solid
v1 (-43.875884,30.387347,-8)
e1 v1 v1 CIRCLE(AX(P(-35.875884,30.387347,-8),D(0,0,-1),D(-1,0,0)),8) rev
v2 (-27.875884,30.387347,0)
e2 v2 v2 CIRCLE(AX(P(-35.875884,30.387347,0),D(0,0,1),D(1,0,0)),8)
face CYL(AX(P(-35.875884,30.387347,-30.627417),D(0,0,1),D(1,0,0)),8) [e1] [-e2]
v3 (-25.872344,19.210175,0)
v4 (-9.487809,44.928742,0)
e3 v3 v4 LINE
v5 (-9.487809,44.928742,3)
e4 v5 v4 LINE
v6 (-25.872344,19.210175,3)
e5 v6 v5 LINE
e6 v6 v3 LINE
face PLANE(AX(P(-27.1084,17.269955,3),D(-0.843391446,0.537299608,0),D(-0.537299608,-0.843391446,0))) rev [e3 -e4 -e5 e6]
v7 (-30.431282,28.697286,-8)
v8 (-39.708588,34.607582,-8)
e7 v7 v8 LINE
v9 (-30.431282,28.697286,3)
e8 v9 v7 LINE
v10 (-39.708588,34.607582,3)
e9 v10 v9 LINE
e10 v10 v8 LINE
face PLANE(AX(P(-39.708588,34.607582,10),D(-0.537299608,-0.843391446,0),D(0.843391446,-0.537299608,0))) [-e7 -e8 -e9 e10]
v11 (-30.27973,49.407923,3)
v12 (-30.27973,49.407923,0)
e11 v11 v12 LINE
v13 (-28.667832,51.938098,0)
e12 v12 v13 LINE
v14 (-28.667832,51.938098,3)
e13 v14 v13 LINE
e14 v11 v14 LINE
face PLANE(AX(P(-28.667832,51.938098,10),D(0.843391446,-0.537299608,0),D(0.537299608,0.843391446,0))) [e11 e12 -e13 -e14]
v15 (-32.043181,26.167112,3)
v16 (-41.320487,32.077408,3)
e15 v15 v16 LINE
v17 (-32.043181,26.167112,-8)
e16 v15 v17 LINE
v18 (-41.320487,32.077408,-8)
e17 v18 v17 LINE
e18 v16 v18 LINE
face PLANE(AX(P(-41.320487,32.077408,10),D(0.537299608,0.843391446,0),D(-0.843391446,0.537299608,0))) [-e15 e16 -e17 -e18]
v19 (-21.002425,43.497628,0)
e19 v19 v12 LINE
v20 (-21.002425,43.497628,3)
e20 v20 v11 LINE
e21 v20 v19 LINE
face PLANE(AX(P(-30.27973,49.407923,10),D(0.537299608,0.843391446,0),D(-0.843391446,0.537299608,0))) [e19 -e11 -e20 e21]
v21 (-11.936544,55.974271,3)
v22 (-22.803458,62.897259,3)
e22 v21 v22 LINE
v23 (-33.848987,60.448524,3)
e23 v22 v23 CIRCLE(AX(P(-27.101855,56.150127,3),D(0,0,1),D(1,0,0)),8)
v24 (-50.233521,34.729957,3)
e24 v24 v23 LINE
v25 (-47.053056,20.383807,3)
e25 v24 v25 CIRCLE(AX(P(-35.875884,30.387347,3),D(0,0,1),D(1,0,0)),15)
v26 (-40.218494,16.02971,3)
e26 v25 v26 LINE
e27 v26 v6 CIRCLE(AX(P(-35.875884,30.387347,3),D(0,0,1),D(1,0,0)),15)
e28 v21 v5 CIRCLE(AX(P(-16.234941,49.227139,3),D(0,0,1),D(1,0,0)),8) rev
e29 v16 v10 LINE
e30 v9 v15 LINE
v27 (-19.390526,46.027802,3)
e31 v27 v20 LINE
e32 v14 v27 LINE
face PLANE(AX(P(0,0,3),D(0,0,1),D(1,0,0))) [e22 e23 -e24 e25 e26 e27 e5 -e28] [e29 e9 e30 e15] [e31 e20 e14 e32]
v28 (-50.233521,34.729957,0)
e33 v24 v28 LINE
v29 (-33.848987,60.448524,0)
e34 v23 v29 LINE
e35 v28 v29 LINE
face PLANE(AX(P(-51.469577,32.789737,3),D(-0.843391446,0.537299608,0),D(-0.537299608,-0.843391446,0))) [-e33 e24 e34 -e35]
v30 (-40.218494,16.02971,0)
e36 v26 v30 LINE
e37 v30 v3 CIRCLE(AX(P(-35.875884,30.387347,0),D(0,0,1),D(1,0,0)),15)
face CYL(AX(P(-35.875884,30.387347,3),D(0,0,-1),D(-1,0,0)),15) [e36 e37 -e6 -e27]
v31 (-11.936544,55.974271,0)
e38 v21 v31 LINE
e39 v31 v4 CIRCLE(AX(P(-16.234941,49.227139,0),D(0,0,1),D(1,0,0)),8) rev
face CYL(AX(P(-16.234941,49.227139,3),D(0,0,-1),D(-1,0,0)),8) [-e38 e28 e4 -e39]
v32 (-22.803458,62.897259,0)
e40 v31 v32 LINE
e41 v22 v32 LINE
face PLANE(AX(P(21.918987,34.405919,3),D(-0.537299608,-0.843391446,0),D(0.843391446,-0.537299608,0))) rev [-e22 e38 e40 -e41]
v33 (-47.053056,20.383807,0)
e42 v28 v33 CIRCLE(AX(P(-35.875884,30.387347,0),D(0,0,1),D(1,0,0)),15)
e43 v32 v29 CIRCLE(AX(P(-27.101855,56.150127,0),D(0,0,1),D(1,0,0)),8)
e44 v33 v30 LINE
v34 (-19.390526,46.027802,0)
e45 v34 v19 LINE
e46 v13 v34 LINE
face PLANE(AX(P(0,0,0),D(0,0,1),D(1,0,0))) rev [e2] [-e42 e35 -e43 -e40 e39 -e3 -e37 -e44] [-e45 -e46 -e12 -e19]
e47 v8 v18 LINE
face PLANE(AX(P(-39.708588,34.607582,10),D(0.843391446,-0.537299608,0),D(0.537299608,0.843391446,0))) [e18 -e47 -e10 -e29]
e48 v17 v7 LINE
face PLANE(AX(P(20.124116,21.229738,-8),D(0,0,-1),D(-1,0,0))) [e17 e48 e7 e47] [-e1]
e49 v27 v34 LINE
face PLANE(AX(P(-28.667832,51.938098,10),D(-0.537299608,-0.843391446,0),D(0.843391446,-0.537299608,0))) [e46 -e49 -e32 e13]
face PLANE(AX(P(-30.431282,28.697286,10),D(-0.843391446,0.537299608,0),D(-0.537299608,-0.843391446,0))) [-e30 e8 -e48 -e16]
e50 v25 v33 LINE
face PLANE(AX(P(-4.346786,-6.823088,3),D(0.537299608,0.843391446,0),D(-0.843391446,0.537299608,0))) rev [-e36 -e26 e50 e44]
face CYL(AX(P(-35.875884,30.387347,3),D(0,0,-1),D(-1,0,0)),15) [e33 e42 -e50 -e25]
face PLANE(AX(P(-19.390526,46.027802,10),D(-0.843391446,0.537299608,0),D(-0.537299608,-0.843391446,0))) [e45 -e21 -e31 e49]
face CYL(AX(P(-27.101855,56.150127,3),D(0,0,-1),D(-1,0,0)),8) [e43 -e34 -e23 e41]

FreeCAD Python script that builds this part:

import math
import FreeCAD as App
import Part
import Sketcher
Q = App.Units.Quantity

doc = App.newDocument("Part")
body = doc.addObject("PartDesign::Body", "Body")

sketch1 = body.newObject("Sketcher::SketchObject", "Sketch")
sketch1.AttachmentSupport = (doc.getObject("XY_Plane"), [""])
sketch1.MapMode = "FlatFace"
sketch1.addGeometry(Part.Circle(App.Vector(-35.875884, 30.387347, 0), App.Vector(0, 0, 1), 8), False)
sketch1.addConstraint(Sketcher.Constraint("Diameter", 0, 16.0))
sketch1.addConstraint(Sketcher.Constraint("DistanceX", 0, 3, -1, 1, 35.875884))
sketch1.addConstraint(Sketcher.Constraint("DistanceY", -1, 1, 0, 3, 30.387347))
pad1 = body.newObject("PartDesign::Pad", "Pad")
pad1.Profile = sketch1
pad1.Length = 8
pad1.Reversed = True

sketch2 = body.newObject("Sketcher::SketchObject", "Sketch001")
sketch2.AttachmentSupport = (doc.getObject("XY_Plane"), [""])
sketch2.MapMode = "FlatFace"
sketch2.addGeometry(Part.LineSegment(App.Vector(-33.848987, 60.448524, 0), App.Vector(-45.879425, 41.564519, 0)), False)
sketch2.addGeometry(Part.LineSegment(App.Vector(-45.879425, 41.564519, 0), App.Vector(-50.233521, 34.729957, 0)), False)
sketch2.addGeometry(Part.ArcOfCircle(Part.Circle(App.Vector(-35.875884, 30.387347, 0), App.Vector(0, 0, 1), 15), math.radians(163.171539), math.radians(221.828461)), False)
sketch2.addGeometry(Part.LineSegment(App.Vector(-47.053056, 20.383807, 0), App.Vector(-40.218494, 16.02971, 0)), False)
sketch2.addGeometry(Part.ArcOfCircle(Part.Circle(App.Vector(-35.875884, 30.387347, 0), App.Vector(0, 0, 1), 15), math.radians(-106.828461), math.radians(-48.171539)), False)
sketch2.addGeometry(Part.LineSegment(App.Vector(-25.872344, 19.210175, 0), App.Vector(-21.518247, 26.044737, 0)), False)
sketch2.addGeometry(Part.LineSegment(App.Vector(-21.518247, 26.044737, 0), App.Vector(-9.487809, 44.928742, 0)), False)
sketch2.addGeometry(Part.ArcOfCircle(Part.Circle(App.Vector(-16.234941, 49.227139, 0), App.Vector(0, 0, 1), 8), math.radians(-32.5), math.radians(57.5)), False)
sketch2.addGeometry(Part.LineSegment(App.Vector(-11.936544, 55.974271, 0), App.Vector(-13.95272, 57.258716, 0)), False)
sketch2.addGeometry(Part.LineSegment(App.Vector(-13.95272, 57.258716, 0), App.Vector(-20.787282, 61.612813, 0)), False)
sketch2.addGeometry(Part.LineSegment(App.Vector(-20.787282, 61.612813, 0), App.Vector(-22.803458, 62.897259, 0)), False)
sketch2.addGeometry(Part.ArcOfCircle(Part.Circle(App.Vector(-27.101855, 56.150127, 0), App.Vector(0, 0, 1), 8), math.radians(57.5), math.radians(147.5)), False)
sketch2.addConstraint(Sketcher.Constraint("Coincident", 0, 2, 1, 1))
sketch2.addConstraint(Sketcher.Constraint("Coincident", 1, 2, 2, 1))
sketch2.addConstraint(Sketcher.Constraint("Coincident", 2, 2, 3, 1))
sketch2.addConstraint(Sketcher.Constraint("Coincident", 3, 2, 4, 1))
sketch2.addConstraint(Sketcher.Constraint("Coincident", 4, 2, 5, 1))
sketch2.addConstraint(Sketcher.Constraint("Coincident", 5, 2, 6, 1))
sketch2.addConstraint(Sketcher.Constraint("Tangent", 6, 2, 7, 1))
sketch2.addConstraint(Sketcher.Constraint("Tangent", 7, 2, 8, 1))
sketch2.addConstraint(Sketcher.Constraint("Coincident", 8, 2, 9, 1))
sketch2.addConstraint(Sketcher.Constraint("Coincident", 9, 2, 10, 1))
sketch2.addConstraint(Sketcher.Constraint("Tangent", 10, 2, 11, 1))
sketch2.addConstraint(Sketcher.Constraint("Tangent", 11, 2, 0, 1))
sketch2.addConstraint(Sketcher.Constraint("Coincident", 4, 3, 2, 3))
sketch2.addConstraint(Sketcher.Constraint("Equal", 2, 4))
sketch2.addConstraint(Sketcher.Constraint("Equal", 7, 11))
sketch2.addConstraint(Sketcher.Constraint("Parallel", 0, 1))
sketch2.addConstraint(Sketcher.Constraint("Perpendicular", 1, 3))
sketch2.addConstraint(Sketcher.Constraint("Perpendicular", 3, 5))
sketch2.addConstraint(Sketcher.Constraint("Parallel", 5, 6))
sketch2.addConstraint(Sketcher.Constraint("Perpendicular", 6, 8))
sketch2.addConstraint(Sketcher.Constraint("Parallel", 8, 9))
sketch2.addConstraint(Sketcher.Constraint("Parallel", 9, 10))
sketch2.addConstraint(Sketcher.Constraint("Equal", 1, 3))
sketch2.addConstraint(Sketcher.Constraint("Equal", 3, 5))
sketch2.addConstraint(Sketcher.Constraint("Equal", 0, 6))
sketch2.addConstraint(Sketcher.Constraint("Equal", 5, 9))
sketch2.addConstraint(Sketcher.Constraint("Equal", 8, 10))
sketch2.addConstraint(Sketcher.Constraint("Radius", 2, 15.0))
sketch2.addConstraint(Sketcher.Constraint("Radius", 7, 8.0))
sketch2.addConstraint(Sketcher.Constraint("Angle", 0, Q("-122.5 deg")))
sketch2.addConstraint(Sketcher.Constraint("DistanceX", 2, 2, 11, 3, 19.951201))
sketch2.addConstraint(Sketcher.Constraint("DistanceY", 5, 2, 7, 3, 23.182402))
sketch2.addConstraint(Sketcher.Constraint("DistanceX", 7, 3, -1, 1, 16.234941))
sketch2.addConstraint(Sketcher.Constraint("DistanceY", -1, 1, 7, 3, 49.227139))
sketch2.addConstraint(Sketcher.Constraint("DistanceY", -1, 1, 0, 2, 41.564519))
pad2 = body.newObject("PartDesign::Pad", "Pad001")
pad2.Profile = sketch2
pad2.Length = 3

sketch3 = body.newObject("Sketcher::SketchObject", "Sketch002")
sketch3.AttachmentSupport = (doc.getObject("XY_Plane"), [""])
sketch3.MapMode = "FlatFace"
sketch3.addGeometry(Part.LineSegment(App.Vector(-21.002425, 43.497628, 0), App.Vector(-19.390526, 46.027802, 0)), False)
sketch3.addGeometry(Part.LineSegment(App.Vector(-19.390526, 46.027802, 0), App.Vector(-28.667832, 51.938098, 0)), False)
sketch3.addGeometry(Part.LineSegment(App.Vector(-28.667832, 51.938098, 0), App.Vector(-30.27973, 49.407923, 0)), False)
sketch3.addGeometry(Part.LineSegment(App.Vector(-30.27973, 49.407923, 0), App.Vector(-21.002425, 43.497628, 0)), False)
sketch3.addGeometry(Part.LineSegment(App.Vector(-32.043181, 26.167112, 0), App.Vector(-30.431282, 28.697286, 0)), False)
sketch3.addGeometry(Part.LineSegment(App.Vector(-30.431282, 28.697286, 0), App.Vector(-39.708588, 34.607582, 0)), False)
sketch3.addGeometry(Part.LineSegment(App.Vector(-39.708588, 34.607582, 0), App.Vector(-41.320487, 32.077408, 0)), False)
sketch3.addGeometry(Part.LineSegment(App.Vector(-41.320487, 32.077408, 0), App.Vector(-32.043181, 26.167112, 0)), False)
sketch3.addConstraint(Sketcher.Constraint("Coincident", 0, 2, 1, 1))
sketch3.addConstraint(Sketcher.Constraint("Coincident", 1, 2, 2, 1))
sketch3.addConstraint(Sketcher.Constraint("Coincident", 2, 2, 3, 1))
sketch3.addConstraint(Sketcher.Constraint("Coincident", 3, 2, 0, 1))
sketch3.addConstraint(Sketcher.Constraint("Coincident", 4, 2, 5, 1))
sketch3.addConstraint(Sketcher.Constraint("Coincident", 5, 2, 6, 1))
sketch3.addConstraint(Sketcher.Constraint("Coincident", 6, 2, 7, 1))
sketch3.addConstraint(Sketcher.Constraint("Coincident", 7, 2, 4, 1))
sketch3.addConstraint(Sketcher.Constraint("Perpendicular", 0, 1))
sketch3.addConstraint(Sketcher.Constraint("Perpendicular", 1, 2))
sketch3.addConstraint(Sketcher.Constraint("Perpendicular", 2, 3))
sketch3.addConstraint(Sketcher.Constraint("Perpendicular", 3, 4))
sketch3.addConstraint(Sketcher.Constraint("Perpendicular", 4, 5))
sketch3.addConstraint(Sketcher.Constraint("Perpendicular", 5, 6))
sketch3.addConstraint(Sketcher.Constraint("Perpendicular", 6, 7))
sketch3.addConstraint(Sketcher.Constraint("Equal", 2, 4))
sketch3.addConstraint(Sketcher.Constraint("Equal", 3, 5))
sketch3.addConstraint(Sketcher.Constraint("Distance", 0, 3.0))
sketch3.addConstraint(Sketcher.Constraint("Distance", 1, 11.0))
sketch3.addConstraint(Sketcher.Constraint("Angle", 0, Q("57.5 deg")))
sketch3.addConstraint(Sketcher.Constraint("DistanceX", 1, 2, -1, 1, 28.667832))
sketch3.addConstraint(Sketcher.Constraint("DistanceX", 4, 2, -1, 1, 30.431282))
sketch3.addConstraint(Sketcher.Constraint("DistanceY", 4, 2, 3, 2, 14.800341))
sketch3.addConstraint(Sketcher.Constraint("DistanceY", -1, 1, 0, 2, 46.027802))
pocket1 = body.newObject("PartDesign::Pocket", "Pocket")
pocket1.Profile = sketch3
pocket1.Type = "ThroughAll"
pocket1.Midplane = True

doc.recompute()
